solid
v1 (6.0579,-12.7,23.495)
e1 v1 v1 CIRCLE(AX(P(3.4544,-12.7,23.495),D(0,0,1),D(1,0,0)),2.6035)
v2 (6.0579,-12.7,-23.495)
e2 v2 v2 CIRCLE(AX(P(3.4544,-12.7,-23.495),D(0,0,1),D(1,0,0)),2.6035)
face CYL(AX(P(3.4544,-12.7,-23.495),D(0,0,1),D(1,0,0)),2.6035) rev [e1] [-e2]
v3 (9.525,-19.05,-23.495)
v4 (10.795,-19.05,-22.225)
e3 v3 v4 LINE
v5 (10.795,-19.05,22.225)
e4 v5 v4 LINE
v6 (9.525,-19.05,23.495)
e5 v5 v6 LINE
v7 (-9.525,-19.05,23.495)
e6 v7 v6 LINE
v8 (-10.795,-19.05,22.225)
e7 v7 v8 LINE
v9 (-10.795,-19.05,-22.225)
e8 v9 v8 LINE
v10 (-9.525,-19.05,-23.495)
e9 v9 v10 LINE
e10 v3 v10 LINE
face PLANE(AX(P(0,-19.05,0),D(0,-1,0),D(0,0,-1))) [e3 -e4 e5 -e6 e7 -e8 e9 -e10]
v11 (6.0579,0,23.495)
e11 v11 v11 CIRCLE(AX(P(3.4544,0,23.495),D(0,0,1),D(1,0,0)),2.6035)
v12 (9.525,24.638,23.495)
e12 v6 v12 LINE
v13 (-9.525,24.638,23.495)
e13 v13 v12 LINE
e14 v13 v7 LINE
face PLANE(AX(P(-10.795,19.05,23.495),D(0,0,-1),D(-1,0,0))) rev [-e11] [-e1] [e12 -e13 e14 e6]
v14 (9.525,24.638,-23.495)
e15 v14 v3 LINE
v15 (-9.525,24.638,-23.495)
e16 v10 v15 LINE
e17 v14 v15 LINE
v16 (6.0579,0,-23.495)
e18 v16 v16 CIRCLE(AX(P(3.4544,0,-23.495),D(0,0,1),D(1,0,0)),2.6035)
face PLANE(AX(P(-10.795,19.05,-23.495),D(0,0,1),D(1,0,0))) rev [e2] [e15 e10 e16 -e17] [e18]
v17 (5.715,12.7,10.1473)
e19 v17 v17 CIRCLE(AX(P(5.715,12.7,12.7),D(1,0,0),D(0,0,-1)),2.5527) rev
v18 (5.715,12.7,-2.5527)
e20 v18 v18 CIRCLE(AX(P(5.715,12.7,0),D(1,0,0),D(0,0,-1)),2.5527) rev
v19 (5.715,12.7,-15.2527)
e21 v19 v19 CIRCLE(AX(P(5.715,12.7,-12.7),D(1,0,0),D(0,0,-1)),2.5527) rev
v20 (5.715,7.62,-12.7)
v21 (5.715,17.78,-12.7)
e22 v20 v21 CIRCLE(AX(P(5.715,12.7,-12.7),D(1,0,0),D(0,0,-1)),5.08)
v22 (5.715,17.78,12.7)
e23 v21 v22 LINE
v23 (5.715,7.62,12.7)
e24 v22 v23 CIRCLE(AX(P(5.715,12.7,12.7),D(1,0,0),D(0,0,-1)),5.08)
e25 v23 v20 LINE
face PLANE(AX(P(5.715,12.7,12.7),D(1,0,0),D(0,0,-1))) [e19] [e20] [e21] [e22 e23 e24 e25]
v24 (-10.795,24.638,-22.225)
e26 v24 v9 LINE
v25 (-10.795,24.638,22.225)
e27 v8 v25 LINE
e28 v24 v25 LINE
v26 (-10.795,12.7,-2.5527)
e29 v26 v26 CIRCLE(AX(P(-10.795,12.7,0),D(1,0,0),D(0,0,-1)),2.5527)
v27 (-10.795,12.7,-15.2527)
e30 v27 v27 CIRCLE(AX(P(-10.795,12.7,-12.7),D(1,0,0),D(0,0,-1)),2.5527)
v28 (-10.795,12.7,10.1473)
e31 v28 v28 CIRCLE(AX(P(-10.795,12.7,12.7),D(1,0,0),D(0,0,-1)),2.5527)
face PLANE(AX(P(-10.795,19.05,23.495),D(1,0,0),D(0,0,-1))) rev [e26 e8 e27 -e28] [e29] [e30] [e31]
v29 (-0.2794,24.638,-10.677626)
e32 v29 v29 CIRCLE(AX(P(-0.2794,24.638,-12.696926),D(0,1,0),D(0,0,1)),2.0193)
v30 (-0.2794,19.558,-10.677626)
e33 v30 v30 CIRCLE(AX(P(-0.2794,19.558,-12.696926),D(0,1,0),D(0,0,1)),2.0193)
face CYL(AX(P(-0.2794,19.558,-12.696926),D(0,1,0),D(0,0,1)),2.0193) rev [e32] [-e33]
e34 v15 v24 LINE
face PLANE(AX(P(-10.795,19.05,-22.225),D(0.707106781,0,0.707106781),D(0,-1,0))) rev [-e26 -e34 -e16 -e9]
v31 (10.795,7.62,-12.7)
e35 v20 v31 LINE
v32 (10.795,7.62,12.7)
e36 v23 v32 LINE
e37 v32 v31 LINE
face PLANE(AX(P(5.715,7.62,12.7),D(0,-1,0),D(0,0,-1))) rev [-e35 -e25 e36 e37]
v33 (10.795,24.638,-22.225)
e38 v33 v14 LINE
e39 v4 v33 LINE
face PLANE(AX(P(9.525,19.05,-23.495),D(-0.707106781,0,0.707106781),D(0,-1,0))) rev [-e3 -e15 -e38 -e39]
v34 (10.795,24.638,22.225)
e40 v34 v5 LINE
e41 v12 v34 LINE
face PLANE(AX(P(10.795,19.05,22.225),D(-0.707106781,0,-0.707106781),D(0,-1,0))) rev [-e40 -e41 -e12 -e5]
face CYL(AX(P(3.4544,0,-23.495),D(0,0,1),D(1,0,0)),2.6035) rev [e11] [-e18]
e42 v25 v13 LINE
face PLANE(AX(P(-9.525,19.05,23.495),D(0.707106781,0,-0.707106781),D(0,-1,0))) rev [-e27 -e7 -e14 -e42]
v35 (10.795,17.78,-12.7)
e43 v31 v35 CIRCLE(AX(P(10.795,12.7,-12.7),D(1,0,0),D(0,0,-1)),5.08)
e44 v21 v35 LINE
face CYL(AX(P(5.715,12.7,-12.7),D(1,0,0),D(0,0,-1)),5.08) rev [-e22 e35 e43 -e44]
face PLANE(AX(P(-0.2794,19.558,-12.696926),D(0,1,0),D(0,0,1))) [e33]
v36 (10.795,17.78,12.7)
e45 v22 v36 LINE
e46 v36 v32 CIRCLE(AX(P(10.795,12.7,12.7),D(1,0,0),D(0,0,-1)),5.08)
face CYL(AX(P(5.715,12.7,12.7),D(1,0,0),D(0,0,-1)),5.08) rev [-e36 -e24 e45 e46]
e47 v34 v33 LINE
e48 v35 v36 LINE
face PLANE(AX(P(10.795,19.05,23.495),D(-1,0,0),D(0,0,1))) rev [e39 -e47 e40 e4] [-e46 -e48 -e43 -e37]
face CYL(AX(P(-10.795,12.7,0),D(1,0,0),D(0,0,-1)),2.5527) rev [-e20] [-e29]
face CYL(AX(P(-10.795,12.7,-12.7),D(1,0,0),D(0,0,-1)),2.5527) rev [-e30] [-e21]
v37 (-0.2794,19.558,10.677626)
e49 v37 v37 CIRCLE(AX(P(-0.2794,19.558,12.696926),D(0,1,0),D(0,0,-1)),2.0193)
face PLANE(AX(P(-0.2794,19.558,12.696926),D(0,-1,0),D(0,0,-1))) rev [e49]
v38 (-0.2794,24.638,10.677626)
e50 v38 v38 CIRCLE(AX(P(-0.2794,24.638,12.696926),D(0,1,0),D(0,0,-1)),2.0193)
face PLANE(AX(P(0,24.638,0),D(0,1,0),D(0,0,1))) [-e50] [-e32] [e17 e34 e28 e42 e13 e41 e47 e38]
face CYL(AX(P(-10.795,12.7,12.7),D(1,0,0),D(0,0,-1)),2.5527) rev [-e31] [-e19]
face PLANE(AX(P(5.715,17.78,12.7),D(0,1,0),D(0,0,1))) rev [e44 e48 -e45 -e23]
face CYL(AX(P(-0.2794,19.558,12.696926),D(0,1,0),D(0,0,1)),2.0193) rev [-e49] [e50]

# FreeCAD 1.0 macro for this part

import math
import FreeCAD as App
import Part
import Sketcher
Q = App.Units.Quantity


def edges_at(feature, points):
    """Names of the edges that pass closest to the given points."""
    edges = feature.Shape.Edges
    near = lambda p: min(range(len(edges)), key=lambda i: edges[i].distToShape(Part.Vertex(*p))[0])
    return sorted({f"Edge{near(p) + 1}" for p in points})

doc = App.newDocument("Part")
body = doc.addObject("PartDesign::Body", "Body")

sketch1 = doc.addObject("Sketcher::SketchObject", "Sketch")
body.addObject(sketch1)
sketch1.AttachmentSupport = (doc.XZ_Plane, [""])
sketch1.MapMode = "FlatFace"
sketch1.addGeometry(Part.LineSegment(App.Vector(-11, -23, 0), App.Vector(-11, 23, 0)), False)
sketch1.addGeometry(Part.LineSegment(App.Vector(-11, 23, 0), App.Vector(11, 23, 0)), False)
sketch1.addGeometry(Part.LineSegment(App.Vector(11, 23, 0), App.Vector(11, -23, 0)), False)
sketch1.addGeometry(Part.LineSegment(App.Vector(11, -23, 0), App.Vector(-11, -23, 0)), False)
sketch1.addConstraint(Sketcher.Constraint("Coincident", 0, 2, 1, 1))
sketch1.addConstraint(Sketcher.Constraint("Coincident", 1, 2, 2, 1))
sketch1.addConstraint(Sketcher.Constraint("Coincident", 2, 2, 3, 1))
sketch1.addConstraint(Sketcher.Constraint("Coincident", 3, 2, 0, 1))
sketch1.addConstraint(Sketcher.Constraint("Vertical", 0))
sketch1.addConstraint(Sketcher.Constraint("Horizontal", 1))
sketch1.addConstraint(Sketcher.Constraint("Vertical", 2))
sketch1.addConstraint(Sketcher.Constraint("Horizontal", 3))
sketch1.addConstraint(Sketcher.Constraint("Symmetric", 0, 2, 2, 2, -1, 1))
sketch1.addConstraint(Sketcher.Constraint("DistanceX", 1, 1, 1, 2, Q("0.85 in")))
sketch1.addConstraint(Sketcher.Constraint("DistanceY", 0, 1, 0, 2, Q("1.85 in")))
pad1 = doc.addObject("PartDesign::Pad", "Pad")
body.addObject(pad1)
pad1.Profile = sketch1
pad1.Length = Q("1.5 in")
pad1.Midplane = True

sketch2 = doc.addObject("Sketcher::SketchObject", "Sketch001")
body.addObject(sketch2)
sketch2.AttachmentSupport = (doc.XY_Plane, [""])
sketch2.MapMode = "FlatFace"
sketch2.AttachmentOffset = App.Placement(App.Vector(0, 0, 0.925 * 25.4), App.Rotation())
sketch2.addGeometry(Part.Circle(App.Vector(3.5, -12.7, 0), App.Vector(0, 0, 1), 2.6), False)
sketch2.addGeometry(Part.Circle(App.Vector(3.5, 0, 0), App.Vector(0, 0, 1), 2.6), False)
sketch2.addConstraint(Sketcher.Constraint("Equal", 0, 1))
sketch2.addConstraint(Sketcher.Constraint("PointOnObject", 1, 3, -1))
sketch2.addConstraint(Sketcher.Constraint("Vertical", 0, 3, 1, 3))
sketch2.addConstraint(Sketcher.Constraint("Diameter", 0, Q("0.205 in")))
sketch2.addConstraint(Sketcher.Constraint("DistanceY", 0, 3, -1, 1, Q("0.5 in")))
sketch2.addConstraint(Sketcher.Constraint("DistanceX", -1, 1, 0, 3, Q("0.136 in")))
pocket1 = doc.addObject("PartDesign::Pocket", "Pocket")
body.addObject(pocket1)
pocket1.Profile = sketch2
pocket1.Type = "ThroughAll"

sketch3 = doc.addObject("Sketcher::SketchObject", "Sketch002")
body.addObject(sketch3)
sketch3.AttachmentSupport = (doc.YZ_Plane, [""])
sketch3.MapMode = "FlatFace"
sketch3.AttachmentOffset = App.Placement(App.Vector(0, 0, 0.425 * 25.4), App.Rotation())
sketch3.addGeometry(Part.Circle(App.Vector(12.7, 12.7, 0), App.Vector(0, 0, 1), 2.6), False)
sketch3.addGeometry(Part.Circle(App.Vector(12.7, -12.7, 0), App.Vector(0, 0, 1), 2.6), False)
sketch3.addGeometry(Part.Circle(App.Vector(12.7, 0, 0), App.Vector(0, 0, 1), 2.6), False)
sketch3.addConstraint(Sketcher.Constraint("Equal", 0, 1))
sketch3.addConstraint(Sketcher.Constraint("Equal", 1, 2))
sketch3.addConstraint(Sketcher.Constraint("Symmetric", 0, 3, 1, 3, -1))
sketch3.addConstraint(Sketcher.Constraint("PointOnObject", 2, 3, -1))
sketch3.addConstraint(Sketcher.Constraint("Vertical", 1, 3, 2, 3))
sketch3.addConstraint(Sketcher.Constraint("Diameter", 0, Q("0.201 in")))
sketch3.addConstraint(Sketcher.Constraint("DistanceY", 1, 3, 0, 3, Q("1 in")))
sketch3.addConstraint(Sketcher.Constraint("DistanceX", -1, 1, 0, 3, Q("0.5 in")))
pocket2 = doc.addObject("PartDesign::Pocket", "Pocket001")
body.addObject(pocket2)
pocket2.Profile = sketch3
pocket2.Type = "ThroughAll"

sketch4 = doc.addObject("Sketcher::SketchObject", "Sketch003")
body.addObject(sketch4)
sketch4.AttachmentSupport = (doc.YZ_Plane, [""])
sketch4.MapMode = "FlatFace"
sketch4.AttachmentOffset = App.Placement(App.Vector(0, 0, 0.425 * 25.4), App.Rotation())
sketch4.addGeometry(Part.LineSegment(App.Vector(18, -13, 0), App.Vector(18, 13, 0)), False)
sketch4.addGeometry(Part.ArcOfCircle(Part.Circle(App.Vector(13, 13, 0), App.Vector(0, 0, 1), 5), math.radians(0), math.radians(180)), False)
sketch4.addGeometry(Part.LineSegment(App.Vector(8, 13, 0), App.Vector(8, -13, 0)), False)
sketch4.addGeometry(Part.ArcOfCircle(Part.Circle(App.Vector(13, -13, 0), App.Vector(0, 0, 1), 5), math.radians(180), math.radians(360)), False)
sketch4.addConstraint(Sketcher.Constraint("Tangent", 0, 2, 1, 1))
sketch4.addConstraint(Sketcher.Constraint("Tangent", 1, 2, 2, 1))
sketch4.addConstraint(Sketcher.Constraint("Tangent", 2, 2, 3, 1))
sketch4.addConstraint(Sketcher.Constraint("Tangent", 3, 2, 0, 1))
sketch4.addConstraint(Sketcher.Constraint("Vertical", 0))
sketch4.addConstraint(Sketcher.Constraint("Vertical", 2))
sketch4.addConstraint(Sketcher.Constraint("Radius", 1, Q("0.2 in")))
sketch4.addConstraint(Sketcher.Constraint("DistanceY", 0, 1, 0, 2, Q("1 in")))
sketch4.addConstraint(Sketcher.Constraint("DistanceX", -1, 1, 1, 3, Q("0.5 in")))
sketch4.addConstraint(Sketcher.Constraint("DistanceY", -1, 1, 1, 3, Q("0.5 in")))
pocket3 = doc.addObject("PartDesign::Pocket", "Pocket002")
body.addObject(pocket3)
pocket3.Profile = sketch4
pocket3.Length = Q("0.2 in")

sketch5 = doc.addObject("Sketcher::SketchObject", "Sketch004")
body.addObject(sketch5)
sketch5.AttachmentSupport = (doc.XZ_Plane, [""])
sketch5.MapMode = "FlatFace"
sketch5.AttachmentOffset = App.Placement(App.Vector(0, 0, -0.75 * 25.4), App.Rotation())
sketch5.addGeometry(Part.LineSegment(App.Vector(-11, -23, 0), App.Vector(-11, 23, 0)), False)
sketch5.addGeometry(Part.LineSegment(App.Vector(-11, 23, 0), App.Vector(11, 23, 0)), False)
sketch5.addGeometry(Part.LineSegment(App.Vector(11, 23, 0), App.Vector(11, -23, 0)), False)
sketch5.addGeometry(Part.LineSegment(App.Vector(11, -23, 0), App.Vector(-11, -23, 0)), False)
sketch5.addConstraint(Sketcher.Constraint("Coincident", 0, 2, 1, 1))
sketch5.addConstraint(Sketcher.Constraint("Coincident", 1, 2, 2, 1))
sketch5.addConstraint(Sketcher.Constraint("Coincident", 2, 2, 3, 1))
sketch5.addConstraint(Sketcher.Constraint("Coincident", 3, 2, 0, 1))
sketch5.addConstraint(Sketcher.Constraint("Vertical", 0))
sketch5.addConstraint(Sketcher.Constraint("Horizontal", 1))
sketch5.addConstraint(Sketcher.Constraint("Vertical", 2))
sketch5.addConstraint(Sketcher.Constraint("Horizontal", 3))
sketch5.addConstraint(Sketcher.Constraint("Symmetric", 0, 2, 2, 2, -1, 1))
sketch5.addConstraint(Sketcher.Constraint("DistanceX", 1, 1, 1, 2, Q("0.85 in")))
sketch5.addConstraint(Sketcher.Constraint("DistanceY", 0, 1, 0, 2, Q("1.85 in")))
pad2 = doc.addObject("PartDesign::Pad", "Pad001")
body.addObject(pad2)
pad2.Profile = sketch5
pad2.Length = Q("0.22 in")
pad2.Reversed = True

sketch6 = doc.addObject("Sketcher::SketchObject", "Sketch005")
body.addObject(sketch6)
sketch6.AttachmentSupport = (doc.XZ_Plane, [""])
sketch6.MapMode = "FlatFace"
sketch6.AttachmentOffset = App.Placement(App.Vector(0, 0, -0.97 * 25.4), App.Rotation())
sketch6.addGeometry(Part.Circle(App.Vector(-0.3, -12.7, 0), App.Vector(0, 0, 1), 2), False)
sketch6.addGeometry(Part.Circle(App.Vector(-0.3, 12.7, 0), App.Vector(0, 0, 1), 2), False)
sketch6.addConstraint(Sketcher.Constraint("Equal", 0, 1))
sketch6.addConstraint(Sketcher.Constraint("Symmetric", 0, 3, 1, 3, -1))
sketch6.addConstraint(Sketcher.Constraint("Diameter", 0, Q("0.159 in")))
sketch6.addConstraint(Sketcher.Constraint("DistanceX", 0, 3, -1, 1, Q("0.011 in")))
sketch6.addConstraint(Sketcher.Constraint("DistanceY", 0, 3, -1, 1, 12.696926))
pocket4 = doc.addObject("PartDesign::Pocket", "Pocket003")
body.addObject(pocket4)
pocket4.Profile = sketch6
pocket4.Length = Q("0.2 in")
pocket4.Reversed = True
doc.recompute()

chamfer = doc.addObject("PartDesign::Chamfer", "Chamfer")
body.addObject(chamfer)
chamfer.Base = (pocket4, edges_at(pocket4, [
    (10.795, 2.794, 23.495),
    (-10.795, 2.794, 23.495),
    (-10.795, 2.794, -23.495),
    (10.795, 2.794, -23.495),
]))
chamfer.Size = Q("0.05 in")

doc.recompute()
